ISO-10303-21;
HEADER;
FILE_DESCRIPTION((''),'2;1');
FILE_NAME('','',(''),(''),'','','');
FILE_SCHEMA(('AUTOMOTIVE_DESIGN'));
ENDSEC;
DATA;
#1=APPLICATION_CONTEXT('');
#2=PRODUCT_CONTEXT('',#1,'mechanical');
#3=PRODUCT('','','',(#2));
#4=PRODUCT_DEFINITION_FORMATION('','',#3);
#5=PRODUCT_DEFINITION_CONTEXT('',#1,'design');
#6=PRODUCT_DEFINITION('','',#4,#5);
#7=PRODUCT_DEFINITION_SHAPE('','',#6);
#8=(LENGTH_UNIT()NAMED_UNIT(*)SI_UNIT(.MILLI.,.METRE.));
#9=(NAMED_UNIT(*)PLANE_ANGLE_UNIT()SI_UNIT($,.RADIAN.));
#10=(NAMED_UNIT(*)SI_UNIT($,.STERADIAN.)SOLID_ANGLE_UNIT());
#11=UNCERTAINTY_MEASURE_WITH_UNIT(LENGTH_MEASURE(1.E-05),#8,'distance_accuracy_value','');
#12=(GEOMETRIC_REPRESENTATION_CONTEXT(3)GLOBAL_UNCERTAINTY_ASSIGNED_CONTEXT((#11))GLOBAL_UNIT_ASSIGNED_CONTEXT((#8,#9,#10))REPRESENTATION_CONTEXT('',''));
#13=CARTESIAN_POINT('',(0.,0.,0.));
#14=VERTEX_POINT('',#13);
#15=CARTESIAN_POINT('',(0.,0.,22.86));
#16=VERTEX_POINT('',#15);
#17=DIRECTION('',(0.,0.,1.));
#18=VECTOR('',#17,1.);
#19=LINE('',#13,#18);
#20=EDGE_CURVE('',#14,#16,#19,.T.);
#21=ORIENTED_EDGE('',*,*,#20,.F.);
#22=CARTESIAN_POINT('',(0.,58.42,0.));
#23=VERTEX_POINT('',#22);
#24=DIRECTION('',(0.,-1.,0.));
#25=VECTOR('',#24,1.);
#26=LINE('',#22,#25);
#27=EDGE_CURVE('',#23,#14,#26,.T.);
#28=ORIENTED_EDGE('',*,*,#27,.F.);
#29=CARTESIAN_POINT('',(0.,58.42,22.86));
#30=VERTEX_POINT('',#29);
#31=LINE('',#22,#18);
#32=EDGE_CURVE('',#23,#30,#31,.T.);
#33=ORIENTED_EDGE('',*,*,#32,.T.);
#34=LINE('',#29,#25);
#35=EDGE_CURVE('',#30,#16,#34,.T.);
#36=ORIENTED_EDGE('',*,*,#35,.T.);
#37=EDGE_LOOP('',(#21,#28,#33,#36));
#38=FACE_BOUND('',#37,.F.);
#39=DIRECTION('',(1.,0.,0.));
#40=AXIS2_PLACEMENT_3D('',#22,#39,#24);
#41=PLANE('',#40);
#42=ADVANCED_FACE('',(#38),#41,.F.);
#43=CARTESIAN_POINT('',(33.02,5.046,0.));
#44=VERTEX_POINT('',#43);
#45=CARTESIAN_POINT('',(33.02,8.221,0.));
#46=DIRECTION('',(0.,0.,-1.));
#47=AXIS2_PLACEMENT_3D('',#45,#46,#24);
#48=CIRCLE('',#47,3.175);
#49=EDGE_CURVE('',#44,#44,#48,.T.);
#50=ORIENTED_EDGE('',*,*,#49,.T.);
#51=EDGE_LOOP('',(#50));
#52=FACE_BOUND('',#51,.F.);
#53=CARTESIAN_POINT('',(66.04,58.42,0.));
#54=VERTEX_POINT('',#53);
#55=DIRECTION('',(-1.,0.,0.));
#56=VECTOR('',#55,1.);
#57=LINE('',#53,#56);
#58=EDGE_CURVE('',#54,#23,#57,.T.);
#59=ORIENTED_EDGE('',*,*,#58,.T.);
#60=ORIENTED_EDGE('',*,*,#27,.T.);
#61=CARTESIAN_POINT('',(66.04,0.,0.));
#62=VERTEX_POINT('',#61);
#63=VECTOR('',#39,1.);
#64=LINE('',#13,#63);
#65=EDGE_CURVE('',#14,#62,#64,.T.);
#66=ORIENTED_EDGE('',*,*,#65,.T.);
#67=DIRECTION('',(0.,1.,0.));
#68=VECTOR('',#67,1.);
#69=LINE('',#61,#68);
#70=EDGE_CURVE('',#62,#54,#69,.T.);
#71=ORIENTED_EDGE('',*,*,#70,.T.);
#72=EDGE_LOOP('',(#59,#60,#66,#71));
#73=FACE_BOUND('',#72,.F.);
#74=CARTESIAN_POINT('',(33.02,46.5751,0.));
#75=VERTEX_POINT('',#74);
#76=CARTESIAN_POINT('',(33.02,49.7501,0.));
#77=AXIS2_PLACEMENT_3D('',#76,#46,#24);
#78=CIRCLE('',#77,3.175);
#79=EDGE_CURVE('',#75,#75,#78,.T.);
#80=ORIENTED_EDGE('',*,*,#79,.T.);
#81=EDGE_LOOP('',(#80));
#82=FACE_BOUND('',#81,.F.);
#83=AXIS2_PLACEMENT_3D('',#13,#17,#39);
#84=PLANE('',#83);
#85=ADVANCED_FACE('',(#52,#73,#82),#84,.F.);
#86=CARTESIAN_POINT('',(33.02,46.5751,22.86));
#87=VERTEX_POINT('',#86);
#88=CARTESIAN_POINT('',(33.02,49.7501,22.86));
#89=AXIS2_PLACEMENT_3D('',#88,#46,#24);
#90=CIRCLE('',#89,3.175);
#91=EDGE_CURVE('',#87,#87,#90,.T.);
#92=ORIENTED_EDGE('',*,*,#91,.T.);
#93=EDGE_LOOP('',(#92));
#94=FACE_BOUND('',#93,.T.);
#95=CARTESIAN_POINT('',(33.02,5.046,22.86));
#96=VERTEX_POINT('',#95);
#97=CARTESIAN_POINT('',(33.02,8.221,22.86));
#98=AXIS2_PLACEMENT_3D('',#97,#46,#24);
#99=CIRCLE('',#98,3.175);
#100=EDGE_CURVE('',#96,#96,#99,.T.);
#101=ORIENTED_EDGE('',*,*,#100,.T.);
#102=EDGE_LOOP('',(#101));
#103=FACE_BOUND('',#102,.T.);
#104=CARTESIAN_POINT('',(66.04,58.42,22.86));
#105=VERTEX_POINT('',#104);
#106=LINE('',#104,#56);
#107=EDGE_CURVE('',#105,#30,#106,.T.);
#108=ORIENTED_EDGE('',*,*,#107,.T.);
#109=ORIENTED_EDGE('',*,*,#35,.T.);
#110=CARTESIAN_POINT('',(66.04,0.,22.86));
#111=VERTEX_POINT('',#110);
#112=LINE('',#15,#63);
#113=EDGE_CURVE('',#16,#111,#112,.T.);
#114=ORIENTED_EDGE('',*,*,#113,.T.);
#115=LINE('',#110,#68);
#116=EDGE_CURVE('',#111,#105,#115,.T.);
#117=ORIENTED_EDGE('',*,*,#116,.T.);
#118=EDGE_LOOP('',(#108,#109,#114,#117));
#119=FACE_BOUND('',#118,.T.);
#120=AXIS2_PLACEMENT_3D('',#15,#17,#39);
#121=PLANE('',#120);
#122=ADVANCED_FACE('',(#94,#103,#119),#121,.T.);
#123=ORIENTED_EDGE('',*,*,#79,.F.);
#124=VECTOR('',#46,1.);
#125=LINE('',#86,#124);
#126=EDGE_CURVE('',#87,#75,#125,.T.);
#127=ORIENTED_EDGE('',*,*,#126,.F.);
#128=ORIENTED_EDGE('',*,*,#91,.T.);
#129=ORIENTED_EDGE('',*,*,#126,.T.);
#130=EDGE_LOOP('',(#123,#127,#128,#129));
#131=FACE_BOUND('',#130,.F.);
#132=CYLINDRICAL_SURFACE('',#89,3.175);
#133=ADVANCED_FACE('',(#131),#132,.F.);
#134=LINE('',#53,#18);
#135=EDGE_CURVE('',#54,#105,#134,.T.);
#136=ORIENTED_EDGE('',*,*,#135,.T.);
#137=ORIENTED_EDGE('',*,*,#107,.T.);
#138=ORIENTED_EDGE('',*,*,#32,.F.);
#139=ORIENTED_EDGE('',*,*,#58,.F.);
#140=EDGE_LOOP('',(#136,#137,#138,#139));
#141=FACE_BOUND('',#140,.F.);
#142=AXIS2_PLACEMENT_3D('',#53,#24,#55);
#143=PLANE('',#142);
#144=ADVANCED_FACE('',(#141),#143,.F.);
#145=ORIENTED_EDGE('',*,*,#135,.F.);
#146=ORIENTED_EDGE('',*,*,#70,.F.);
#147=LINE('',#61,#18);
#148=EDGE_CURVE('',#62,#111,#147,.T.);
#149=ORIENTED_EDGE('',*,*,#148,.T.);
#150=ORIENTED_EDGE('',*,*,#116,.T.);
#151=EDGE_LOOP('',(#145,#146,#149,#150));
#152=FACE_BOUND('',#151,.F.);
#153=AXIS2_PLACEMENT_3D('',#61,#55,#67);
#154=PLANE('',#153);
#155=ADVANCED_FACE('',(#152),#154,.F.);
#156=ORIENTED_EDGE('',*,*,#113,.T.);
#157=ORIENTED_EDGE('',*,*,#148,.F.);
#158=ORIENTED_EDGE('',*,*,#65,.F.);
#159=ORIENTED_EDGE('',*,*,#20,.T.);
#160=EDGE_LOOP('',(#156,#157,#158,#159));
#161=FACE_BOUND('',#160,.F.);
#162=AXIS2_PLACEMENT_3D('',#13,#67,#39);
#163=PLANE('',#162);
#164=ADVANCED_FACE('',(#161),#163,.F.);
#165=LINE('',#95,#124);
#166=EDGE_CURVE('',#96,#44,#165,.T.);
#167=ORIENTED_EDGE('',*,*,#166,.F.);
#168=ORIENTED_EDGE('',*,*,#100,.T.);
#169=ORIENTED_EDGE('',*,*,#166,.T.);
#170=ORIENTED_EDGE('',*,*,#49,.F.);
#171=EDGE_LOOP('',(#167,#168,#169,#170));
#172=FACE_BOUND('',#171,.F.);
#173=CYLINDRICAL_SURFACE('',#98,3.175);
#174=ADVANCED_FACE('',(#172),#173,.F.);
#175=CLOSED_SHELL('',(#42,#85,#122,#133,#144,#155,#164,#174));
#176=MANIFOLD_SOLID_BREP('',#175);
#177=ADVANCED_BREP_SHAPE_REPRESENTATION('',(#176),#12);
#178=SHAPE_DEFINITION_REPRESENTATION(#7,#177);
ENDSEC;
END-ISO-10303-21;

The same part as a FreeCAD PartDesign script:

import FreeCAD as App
import Part
import Sketcher

V = App.Vector
Q = App.Units.Quantity

doc = App.newDocument("Part")
params = doc.addObject("Spreadsheet::Sheet", "Params")
for row, (alias, value) in enumerate([
    ("sketch1_width", "2.6 in"),
    ("sketch1_height", "2.3 in"),
    ("pad1_length", "0.9 in"),
    ("sketch2_diameter", "0.25 in"),
    ("hole_diameter", "0.25 in"),
], start=1):
    params.set(f"A{row}", alias)
    params.set(f"B{row}", "=" + value)
    params.setAlias(f"B{row}", alias)

body = doc.addObject("PartDesign::Body", "Body")

sketch1 = doc.addObject("Sketcher::SketchObject", "Sketch")
body.addObject(sketch1)
sketch1.AttachmentSupport = (doc.XY_Plane, [""])
sketch1.MapMode = "FlatFace"
sketch1.addGeometry([
    Part.LineSegment(V(0, 58.42, 0), V(0, 0, 0)),
    Part.LineSegment(V(0, 0, 0), V(66.04, 0, 0)),
    Part.LineSegment(V(66.04, 0, 0), V(66.04, 58.42, 0)),
    Part.LineSegment(V(66.04, 58.42, 0), V(0, 58.42, 0)),
], False)
sketch1.addConstraint([
    Sketcher.Constraint("Coincident", 0, 2, 1, 1),
    Sketcher.Constraint("Coincident", 1, 2, 2, 1),
    Sketcher.Constraint("Coincident", 2, 2, 3, 1),
    Sketcher.Constraint("Coincident", 3, 2, 0, 1),
    Sketcher.Constraint("Vertical", 0),
    Sketcher.Constraint("Horizontal", 1),
    Sketcher.Constraint("Vertical", 2),
    Sketcher.Constraint("Horizontal", 3),
    Sketcher.Constraint("Coincident", 0, 2, -1, 1),
    Sketcher.Constraint("DistanceX", 1, 1, 1, 2, Q("2.6 in")),
    Sketcher.Constraint("DistanceY", 0, 2, 0, 1, Q("2.3 in")),
])
sketch1.setExpression("Constraints[9]", "Params.sketch1_width")
sketch1.setExpression("Constraints[10]", "Params.sketch1_height")
pad1 = doc.addObject("PartDesign::Pad", "Pad")
body.addObject(pad1)
pad1.Profile = sketch1
pad1.setExpression("Length", "Params.pad1_length")

sketch2 = doc.addObject("Sketcher::SketchObject", "Sketch001")
body.addObject(sketch2)
sketch2.AttachmentSupport = (doc.XY_Plane, [""])
sketch2.MapMode = "FlatFace"
sketch2.AttachmentOffset = App.Placement(V(0, 0, 0.9 * 25.4), App.Rotation())
sketch2.addGeometry([
    Part.Circle(V(33.02, 49.7501, 0), V(0, 0, 1), 3.175),
    Part.Circle(V(33.02, 8.221, 0), V(0, 0, 1), 3.175),
], False)
sketch2.addConstraint([
    Sketcher.Constraint("Equal", 0, 1),
    Sketcher.Constraint("Vertical", 0, 3, 1, 3),
    Sketcher.Constraint("Diameter", 0, Q("0.25 in")),
    Sketcher.Constraint("DistanceX", -1, 1, 0, 3, Q("1.3 in")),
    Sketcher.Constraint("DistanceY", 1, 3, 0, 3, Q("1.635 in")),
    Sketcher.Constraint("DistanceY", -1, 1, 0, 3, 49.75),
])
sketch2.setExpression("Constraints[2]", "Params.sketch2_diameter")
doc.recompute()
hole = doc.addObject("PartDesign::Hole", "Hole")
body.addObject(hole)
hole.Profile = sketch2
hole.ThreadType = "None"
hole.setExpression("Diameter", "Params.hole_diameter")
hole.DepthType = "ThroughAll"

doc.recompute()
